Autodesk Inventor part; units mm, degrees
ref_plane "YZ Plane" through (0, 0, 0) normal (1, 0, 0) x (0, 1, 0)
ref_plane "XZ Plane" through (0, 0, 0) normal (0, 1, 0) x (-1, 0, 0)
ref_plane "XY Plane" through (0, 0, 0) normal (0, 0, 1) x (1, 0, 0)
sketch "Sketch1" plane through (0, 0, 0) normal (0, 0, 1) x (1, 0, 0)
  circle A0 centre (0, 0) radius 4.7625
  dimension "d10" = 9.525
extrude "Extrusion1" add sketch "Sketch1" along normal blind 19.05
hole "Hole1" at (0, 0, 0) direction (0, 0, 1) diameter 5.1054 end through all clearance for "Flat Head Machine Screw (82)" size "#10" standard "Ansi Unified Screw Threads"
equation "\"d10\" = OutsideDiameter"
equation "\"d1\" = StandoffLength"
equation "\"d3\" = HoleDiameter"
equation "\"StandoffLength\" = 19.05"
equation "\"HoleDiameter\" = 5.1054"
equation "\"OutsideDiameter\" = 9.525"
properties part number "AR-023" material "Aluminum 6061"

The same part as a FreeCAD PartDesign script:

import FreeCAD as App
import Part
import Sketcher

V = App.Vector
Q = App.Units.Quantity

doc = App.newDocument("Part")
body = doc.addObject("PartDesign::Body", "Body")

sketch1 = body.newObject("Sketcher::SketchObject", "Sketch")
sketch1.AttachmentSupport = (doc.getObject("XY_Plane"), [""])
sketch1.MapMode = "FlatFace"
sketch1.addGeometry(Part.Circle(V(0, 0, 0), V(0, 0, 1), 4.8), False)
sketch1.addConstraint([
    Sketcher.Constraint("Coincident", 0, 3, -1, 1),
    Sketcher.Constraint("Diameter", 0, Q("0.375 in")),
])
pad1 = body.newObject("PartDesign::Pad", "Pad")
pad1.Profile = sketch1
pad1.Length = Q("0.75 in")

sketch2 = body.newObject("Sketcher::SketchObject", "Sketch001")
sketch2.AttachmentSupport = (doc.getObject("XY_Plane"), [""])
sketch2.MapMode = "FlatFace"
sketch2.addGeometry(Part.Circle(V(0, 0, 0), V(0, 0, 1), 2.6), False)
sketch2.addConstraint([
    Sketcher.Constraint("Coincident", 0, 3, -1, 1),
    Sketcher.Constraint("Diameter", 0, Q("0.201 in")),
])
doc.recompute()
hole = body.newObject("PartDesign::Hole", "Hole")
hole.Profile = sketch2
hole.ThreadType = "None"
hole.Diameter = Q("0.201 in")
hole.DepthType = "ThroughAll"
hole.Reversed = True

doc.recompute()
